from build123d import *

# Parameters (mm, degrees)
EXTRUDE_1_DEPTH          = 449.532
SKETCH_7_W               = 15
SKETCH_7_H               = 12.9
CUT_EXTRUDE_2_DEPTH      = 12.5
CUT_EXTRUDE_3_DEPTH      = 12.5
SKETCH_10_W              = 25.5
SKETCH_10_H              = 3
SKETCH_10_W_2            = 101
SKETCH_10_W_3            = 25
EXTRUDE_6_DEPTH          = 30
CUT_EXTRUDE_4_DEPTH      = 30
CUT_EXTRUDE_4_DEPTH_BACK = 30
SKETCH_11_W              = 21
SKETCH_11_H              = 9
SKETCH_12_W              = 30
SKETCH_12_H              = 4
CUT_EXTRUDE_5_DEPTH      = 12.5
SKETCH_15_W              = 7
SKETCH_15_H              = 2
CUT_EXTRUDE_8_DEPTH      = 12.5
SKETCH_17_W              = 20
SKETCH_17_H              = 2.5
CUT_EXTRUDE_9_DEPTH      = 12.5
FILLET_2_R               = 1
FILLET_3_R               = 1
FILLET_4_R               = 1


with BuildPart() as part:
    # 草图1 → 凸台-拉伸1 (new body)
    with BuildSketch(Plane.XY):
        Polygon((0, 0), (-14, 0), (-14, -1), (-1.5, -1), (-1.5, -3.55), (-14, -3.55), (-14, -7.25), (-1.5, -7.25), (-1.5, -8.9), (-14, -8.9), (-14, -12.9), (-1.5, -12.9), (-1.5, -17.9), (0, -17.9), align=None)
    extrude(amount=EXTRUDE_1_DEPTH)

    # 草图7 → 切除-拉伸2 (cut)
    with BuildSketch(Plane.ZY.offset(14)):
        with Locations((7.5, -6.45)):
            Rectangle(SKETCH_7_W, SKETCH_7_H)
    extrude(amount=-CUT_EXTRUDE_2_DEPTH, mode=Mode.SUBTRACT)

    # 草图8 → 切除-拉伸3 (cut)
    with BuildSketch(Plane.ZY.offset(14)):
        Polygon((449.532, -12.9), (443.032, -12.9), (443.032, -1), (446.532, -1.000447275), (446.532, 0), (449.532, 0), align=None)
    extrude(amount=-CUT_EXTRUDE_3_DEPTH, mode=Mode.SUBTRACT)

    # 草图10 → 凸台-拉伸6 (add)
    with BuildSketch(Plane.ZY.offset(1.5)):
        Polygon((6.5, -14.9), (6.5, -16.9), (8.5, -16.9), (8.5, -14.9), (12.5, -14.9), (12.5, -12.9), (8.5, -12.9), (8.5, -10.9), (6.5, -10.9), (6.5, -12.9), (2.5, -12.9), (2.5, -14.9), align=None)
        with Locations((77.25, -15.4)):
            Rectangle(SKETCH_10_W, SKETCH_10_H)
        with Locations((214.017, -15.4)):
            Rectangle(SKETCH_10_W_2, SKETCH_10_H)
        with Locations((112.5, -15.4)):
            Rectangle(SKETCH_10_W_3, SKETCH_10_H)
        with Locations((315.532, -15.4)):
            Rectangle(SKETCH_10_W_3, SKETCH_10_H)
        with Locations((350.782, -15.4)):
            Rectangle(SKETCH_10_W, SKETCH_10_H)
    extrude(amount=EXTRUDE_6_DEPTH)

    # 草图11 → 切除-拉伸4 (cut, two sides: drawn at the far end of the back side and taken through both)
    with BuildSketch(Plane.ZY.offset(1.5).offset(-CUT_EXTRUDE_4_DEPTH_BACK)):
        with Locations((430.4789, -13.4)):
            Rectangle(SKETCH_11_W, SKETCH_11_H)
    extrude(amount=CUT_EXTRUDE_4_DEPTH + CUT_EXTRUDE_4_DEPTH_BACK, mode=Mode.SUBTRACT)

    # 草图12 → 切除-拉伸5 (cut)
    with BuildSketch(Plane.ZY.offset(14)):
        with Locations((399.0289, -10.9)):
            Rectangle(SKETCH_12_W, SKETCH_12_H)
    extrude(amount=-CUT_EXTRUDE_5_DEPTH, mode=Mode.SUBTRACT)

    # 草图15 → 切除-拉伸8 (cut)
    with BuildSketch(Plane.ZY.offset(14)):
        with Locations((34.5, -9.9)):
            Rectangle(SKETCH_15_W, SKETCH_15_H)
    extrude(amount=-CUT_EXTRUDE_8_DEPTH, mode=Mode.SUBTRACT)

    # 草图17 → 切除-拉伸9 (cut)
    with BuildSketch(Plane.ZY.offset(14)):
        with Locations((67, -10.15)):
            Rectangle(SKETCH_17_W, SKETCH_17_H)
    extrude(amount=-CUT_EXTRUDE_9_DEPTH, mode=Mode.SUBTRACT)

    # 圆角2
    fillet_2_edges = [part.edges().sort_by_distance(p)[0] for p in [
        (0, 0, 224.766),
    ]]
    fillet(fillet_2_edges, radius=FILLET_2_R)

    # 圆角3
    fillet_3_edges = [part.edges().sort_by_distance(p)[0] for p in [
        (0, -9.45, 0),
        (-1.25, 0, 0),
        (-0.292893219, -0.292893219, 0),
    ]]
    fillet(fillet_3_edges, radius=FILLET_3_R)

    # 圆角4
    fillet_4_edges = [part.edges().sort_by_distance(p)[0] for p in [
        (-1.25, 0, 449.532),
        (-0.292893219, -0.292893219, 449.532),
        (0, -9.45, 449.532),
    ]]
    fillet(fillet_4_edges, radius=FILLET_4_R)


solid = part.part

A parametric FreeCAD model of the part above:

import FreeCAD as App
import Part
import Sketcher
from FreeCAD import Vector
Q = App.Units.Quantity


def edges_at(feature, points):
    """Names of the edges that pass closest to the given points."""
    edges = feature.Shape.Edges
    near = lambda p: min(range(len(edges)), key=lambda i: edges[i].distToShape(Part.Vertex(*p))[0])
    return sorted({f"Edge{near(p) + 1}" for p in points})


def add_polygon(sketch, points):
    """Adds a closed chain of lines whose ends are joined by coincident constraints."""
    first, n = sketch.GeometryCount, len(points)
    for a, b in zip(points, points[1:] + points[:1]):
        sketch.addGeometry(Part.LineSegment(App.Vector(*a, 0), App.Vector(*b, 0)), False)
    for i in range(n):
        sketch.addConstraint(Sketcher.Constraint("Coincident", first + i, 2, first + (i + 1) % n, 1))

doc = App.newDocument("Part")
body = doc.addObject("PartDesign::Body", "Body")

# Sketch on XY plane
sketch1 = doc.addObject("Sketcher::SketchObject", "Sketch")
body.addObject(sketch1)
sketch1.AttachmentSupport = (doc.XY_Plane, [""])
sketch1.MapMode = "FlatFace"
add_polygon(sketch1, [(0, 0), (-14, 0), (-14, -1), (-1.5, -1), (-1.5, -3.5), (-14, -3.5), (-14, -7.2), (-1.5, -7.2), (-1.5, -8.9), (-14, -8.9), (-14, -12.9), (-1.5, -12.9), (-1.5, -17.9), (0, -17.9)])  # lines 0-13
sketch1.addConstraint([
    Sketcher.Constraint("Horizontal", 0),
    Sketcher.Constraint("Vertical", 1),
    Sketcher.Constraint("Horizontal", 2),
    Sketcher.Constraint("Vertical", 3),
    Sketcher.Constraint("Horizontal", 4),
    Sketcher.Constraint("Vertical", 5),
    Sketcher.Constraint("Horizontal", 6),
    Sketcher.Constraint("Vertical", 7),
    Sketcher.Constraint("Horizontal", 8),
    Sketcher.Constraint("Vertical", 9),
    Sketcher.Constraint("Horizontal", 10),
    Sketcher.Constraint("Vertical", 11),
    Sketcher.Constraint("Horizontal", 12),
    Sketcher.Constraint("Vertical", 13),
    Sketcher.Constraint("Coincident", 13, 2, -1, 1),
    Sketcher.Constraint("Vertical", 1, 2, 4, 2),
    Sketcher.Constraint("Vertical", 3, 2, 6, 2),
    Sketcher.Constraint("Vertical", 5, 2, 8, 2),
    Sketcher.Constraint("Vertical", 7, 2, 10, 2),
    Sketcher.Constraint("DistanceX", 0, 2, 0, 1, Q("14 mm")),
    Sketcher.Constraint("DistanceY", 1, 2, 1, 1, Q("1 mm")),
    Sketcher.Constraint("DistanceY", 9, 2, 9, 1, Q("4 mm")),
    Sketcher.Constraint("DistanceY", 11, 2, 11, 1, Q("5 mm")),
    Sketcher.Constraint("DistanceX", 2, 1, 2, 2, Q("12.5 mm")),
    Sketcher.Constraint("DistanceY", 5, 2, 5, 1, Q("3.7 mm")),
    Sketcher.Constraint("DistanceY", 13, 1, 13, 2, Q("17.9 mm")),
    Sketcher.Constraint("DistanceY", 3, 2, 3, 1, Q("2.55 mm")),
])
pad1 = doc.addObject("PartDesign::Pad", "Pad")
body.addObject(pad1)
pad1.Profile = sketch1
pad1.Length = 449.532

# Sketch on YZ plane
sketch2 = doc.addObject("Sketcher::SketchObject", "Sketch001")
body.addObject(sketch2)
sketch2.AttachmentSupport = (doc.YZ_Plane, [""])
sketch2.MapMode = "FlatFace"
sketch2.AttachmentOffset = App.Placement(Vector(0, 0, -14), App.Rotation())
add_polygon(sketch2, [(0, 0), (-13, 0), (-13, 15), (0, 15)])  # lines 0-3
sketch2.addConstraint([
    Sketcher.Constraint("Horizontal", 0),
    Sketcher.Constraint("Vertical", 1),
    Sketcher.Constraint("Horizontal", 2),
    Sketcher.Constraint("Vertical", 3),
    Sketcher.Constraint("Coincident", 3, 2, -1, 1),
    Sketcher.Constraint("DistanceY", 1, 1, 1, 2, Q("15 mm")),
    Sketcher.Constraint("DistanceX", 0, 2, 0, 1, Q("12.9 mm")),
])
pocket1 = doc.addObject("PartDesign::Pocket", "Pocket")
body.addObject(pocket1)
pocket1.Profile = sketch2
pocket1.Length = 12.5
pocket1.Reversed = True

# Sketch on YZ plane
sketch3 = doc.addObject("Sketcher::SketchObject", "Sketch002")
body.addObject(sketch3)
sketch3.AttachmentSupport = (doc.YZ_Plane, [""])
sketch3.MapMode = "FlatFace"
sketch3.AttachmentOffset = App.Placement(Vector(0, 0, -14), App.Rotation())
add_polygon(sketch3, [(-12.9, 443), (-12.9, 449.5), (0, 449.5), (0, 446.5), (-1, 446.5), (-1, 443)])  # lines 0-5
sketch3.addConstraint([
    Sketcher.Constraint("Vertical", 0),
    Sketcher.Constraint("Horizontal", 1),
    Sketcher.Constraint("Vertical", 2),
    Sketcher.Constraint("Horizontal", 3),
    Sketcher.Constraint("Horizontal", 5),
    Sketcher.Constraint("PointOnObject", 1, 2, -2),
    Sketcher.Constraint("DistanceY", 2, 2, 2, 1, Q("3 mm")),
    Sketcher.Constraint("DistanceX", 1, 1, 1, 2, Q("12.9 mm")),
    Sketcher.Constraint("DistanceX", 5, 2, 5, 1, Q("11.9 mm")),
    Sketcher.Constraint("DistanceY", 0, 1, 0, 2, Q("6.5 mm")),
    Sketcher.Constraint("DistanceY", -1, 1, 0, 2, Q("449.532 mm")),
    Sketcher.Constraint("DistanceX", 3, 2, 3, 1, Q("1.000447 mm")),
])
pocket2 = doc.addObject("PartDesign::Pocket", "Pocket001")
body.addObject(pocket2)
pocket2.Profile = sketch3
pocket2.Length = 12.5
pocket2.Reversed = True

# Sketch on YZ plane
sketch4 = doc.addObject("Sketcher::SketchObject", "Sketch003")
body.addObject(sketch4)
sketch4.AttachmentSupport = (doc.YZ_Plane, [""])
sketch4.MapMode = "FlatFace"
sketch4.AttachmentOffset = App.Placement(Vector(0, 0, -1.5), App.Rotation())
add_polygon(sketch4, [(-14.9, 6.5), (-16.9, 6.5), (-16.9, 8.5), (-14.9, 8.5), (-14.9, 12.5), (-12.9, 12.5), (-12.9, 8.5), (-10.9, 8.5), (-10.9, 6.5), (-12.9, 6.5), (-12.9, 2.5), (-14.9, 2.5)])  # lines 0-11
add_polygon(sketch4, [(-13.9, 64.5), (-16.9, 64.5), (-16.9, 90), (-13.9, 90)])  # lines 12-15
add_polygon(sketch4, [(-13.9, 163.5), (-16.9, 163.5), (-16.9, 264.5), (-13.9, 264.5)])  # lines 16-19
add_polygon(sketch4, [(-13.9, 100), (-16.9, 100), (-16.9, 125), (-13.9, 125)])  # lines 20-23
add_polygon(sketch4, [(-13.9, 303), (-16.9, 303), (-16.9, 328), (-13.9, 328)])  # lines 24-27
add_polygon(sketch4, [(-13.9, 338), (-16.9, 338), (-16.9, 363.5), (-13.9, 363.5)])  # lines 28-31
sketch4.addConstraint([
    Sketcher.Constraint("Horizontal", 0),
    Sketcher.Constraint("Vertical", 1),
    Sketcher.Constraint("Horizontal", 2),
    Sketcher.Constraint("Vertical", 3),
    Sketcher.Constraint("Horizontal", 4),
    Sketcher.Constraint("Vertical", 5),
    Sketcher.Constraint("Horizontal", 6),
    Sketcher.Constraint("Vertical", 7),
    Sketcher.Constraint("Horizontal", 8),
    Sketcher.Constraint("Vertical", 9),
    Sketcher.Constraint("Horizontal", 10),
    Sketcher.Constraint("Vertical", 11),
    Sketcher.Constraint("Horizontal", 12),
    Sketcher.Constraint("Vertical", 13),
    Sketcher.Constraint("Horizontal", 14),
    Sketcher.Constraint("Vertical", 15),
    Sketcher.Constraint("Horizontal", 16),
    Sketcher.Constraint("Vertical", 17),
    Sketcher.Constraint("Horizontal", 18),
    Sketcher.Constraint("Vertical", 19),
    Sketcher.Constraint("Horizontal", 20),
    Sketcher.Constraint("Vertical", 21),
    Sketcher.Constraint("Horizontal", 22),
    Sketcher.Constraint("Vertical", 23),
    Sketcher.Constraint("Horizontal", 24),
    Sketcher.Constraint("Vertical", 25),
    Sketcher.Constraint("Horizontal", 26),
    Sketcher.Constraint("Vertical", 27),
    Sketcher.Constraint("Horizontal", 28),
    Sketcher.Constraint("Vertical", 29),
    Sketcher.Constraint("Horizontal", 30),
    Sketcher.Constraint("Vertical", 31),
    Sketcher.Constraint("Horizontal", 2, 2, 5, 2),
    Sketcher.Constraint("Horizontal", 0, 2, 7, 2),
    Sketcher.Constraint("Vertical", 5, 2, 8, 2),
    Sketcher.Constraint("Vertical", 3, 2, 10, 2),
    Sketcher.Constraint("Vertical", 1, 2, 12, 2),
    Sketcher.Constraint("Vertical", 13, 2, 16, 2),
    Sketcher.Constraint("Vertical", 15, 2, 18, 2),
    Sketcher.Constraint("Vertical", 17, 2, 20, 2),
    Sketcher.Constraint("Vertical", 19, 2, 22, 2),
    Sketcher.Constraint("Vertical", 21, 2, 24, 2),
    Sketcher.Constraint("Vertical", 23, 2, 26, 2),
    Sketcher.Constraint("Vertical", 25, 2, 28, 2),
    Sketcher.Constraint("Vertical", 27, 2, 30, 2),
    Sketcher.Constraint("Equal", 2, 4),
    Sketcher.Constraint("Equal", 4, 6),
    Sketcher.Constraint("Equal", 10, 1),
    Sketcher.Constraint("Equal", 5, 9),
    Sketcher.Constraint("Equal", 23, 25),
    Sketcher.Constraint("Equal", 15, 29),
    Sketcher.Constraint("DistanceX", 0, 2, 0, 1, Q("2 mm")),
    Sketcher.Constraint("DistanceX", 12, 2, 12, 1, Q("3 mm")),
    Sketcher.Constraint("DistanceY", 3, 1, 3, 2, Q("4 mm")),
    Sketcher.Constraint("DistanceY", 17, 1, 17, 2, Q("101 mm")),
    Sketcher.Constraint("DistanceY", 21, 1, 21, 2, Q("25 mm")),
    Sketcher.Constraint("DistanceY", 13, 1, 13, 2, Q("25.5 mm")),
    Sketcher.Constraint("DistanceY", -1, 1, 13, 2, Q("90 mm")),
    Sketcher.Constraint("DistanceY", -1, 1, 20, 2, Q("100 mm")),
    Sketcher.Constraint("DistanceY", 3, 2, 12, 2, Q("52 mm")),
    Sketcher.Constraint("DistanceY", 25, 2, 28, 2, Q("10 mm")),
    Sketcher.Constraint("DistanceX", 0, 2, -1, 1, Q("16.9 mm")),
    Sketcher.Constraint("DistanceY", -1, 1, 16, 2, Q("163.517 mm")),
    Sketcher.Constraint("DistanceY", -1, 1, 24, 2, Q("303.032 mm")),
])
pad2 = doc.addObject("PartDesign::Pad", "Pad001")
body.addObject(pad2)
pad2.Profile = sketch4
pad2.Length = 30
pad2.Reversed = True

# Sketch on YZ plane
sketch5 = doc.addObject("Sketcher::SketchObject", "Sketch004")
body.addObject(sketch5)
sketch5.AttachmentSupport = (doc.YZ_Plane, [""])
sketch5.MapMode = "FlatFace"
sketch5.AttachmentOffset = App.Placement(Vector(0, 0, -1.5), App.Rotation())
add_polygon(sketch5, [(-9, 420), (-18, 420), (-18, 441), (-9, 441)])  # lines 0-3
sketch5.addConstraint([
    Sketcher.Constraint("Horizontal", 0),
    Sketcher.Constraint("Vertical", 1),
    Sketcher.Constraint("Horizontal", 2),
    Sketcher.Constraint("Vertical", 3),
    Sketcher.Constraint("DistanceX", 0, 2, 0, 1, Q("9 mm")),
    Sketcher.Constraint("DistanceY", 1, 1, 1, 2, Q("21 mm")),
    Sketcher.Constraint("DistanceX", 0, 2, -1, 1, Q("17.9 mm")),
    Sketcher.Constraint("DistanceY", -1, 1, 0, 2, Q("419.9789 mm")),
])
pocket3 = doc.addObject("PartDesign::Pocket", "Pocket002")
body.addObject(pocket3)
pocket3.Profile = sketch5
pocket3.Type = "ThroughAll"
pocket3.Midplane = True

# Sketch on YZ plane
sketch6 = doc.addObject("Sketcher::SketchObject", "Sketch005")
body.addObject(sketch6)
sketch6.AttachmentSupport = (doc.YZ_Plane, [""])
sketch6.MapMode = "FlatFace"
sketch6.AttachmentOffset = App.Placement(Vector(0, 0, -14), App.Rotation())
add_polygon(sketch6, [(-8.9, 384), (-12.9, 384), (-12.9, 414), (-8.9, 414)])  # lines 0-3
sketch6.addConstraint([
    Sketcher.Constraint("Horizontal", 0),
    Sketcher.Constraint("Vertical", 1),
    Sketcher.Constraint("Horizontal", 2),
    Sketcher.Constraint("Vertical", 3),
    Sketcher.Constraint("DistanceX", 0, 2, 0, 1, Q("4 mm")),
    Sketcher.Constraint("DistanceY", 1, 1, 1, 2, Q("30 mm")),
    Sketcher.Constraint("DistanceX", 0, 2, -1, 1, Q("12.9 mm")),
    Sketcher.Constraint("DistanceY", -1, 1, 0, 2, Q("384.0289 mm")),
])
pocket4 = doc.addObject("PartDesign::Pocket", "Pocket003")
body.addObject(pocket4)
pocket4.Profile = sketch6
pocket4.Length = 12.5
pocket4.Reversed = True

# Sketch on YZ plane
sketch7 = doc.addObject("Sketcher::SketchObject", "Sketch006")
body.addObject(sketch7)
sketch7.AttachmentSupport = (doc.YZ_Plane, [""])
sketch7.MapMode = "FlatFace"
sketch7.AttachmentOffset = App.Placement(Vector(0, 0, -14), App.Rotation())
add_polygon(sketch7, [(-8.9, 31), (-10.9, 31), (-10.9, 38), (-8.9, 38)])  # lines 0-3
sketch7.addConstraint([
    Sketcher.Constraint("Horizontal", 0),
    Sketcher.Constraint("Vertical", 1),
    Sketcher.Constraint("Horizontal", 2),
    Sketcher.Constraint("Vertical", 3),
    Sketcher.Constraint("DistanceX", 0, 2, 0, 1, Q("2 mm")),
    Sketcher.Constraint("DistanceY", 1, 1, 1, 2, Q("7 mm")),
    Sketcher.Constraint("DistanceY", -1, 1, 0, 2, Q("31 mm")),
    Sketcher.Constraint("DistanceX", 0, 2, -1, 1, Q("10.9 mm")),
])
pocket5 = doc.addObject("PartDesign::Pocket", "Pocket004")
body.addObject(pocket5)
pocket5.Profile = sketch7
pocket5.Length = 12.5
pocket5.Reversed = True

# Sketch on YZ plane
sketch8 = doc.addObject("Sketcher::SketchObject", "Sketch007")
body.addObject(sketch8)
sketch8.AttachmentSupport = (doc.YZ_Plane, [""])
sketch8.MapMode = "FlatFace"
sketch8.AttachmentOffset = App.Placement(Vector(0, 0, -14), App.Rotation())
add_polygon(sketch8, [(-8.9, 57), (-11.4, 57), (-11.4, 77), (-8.9, 77)])  # lines 0-3
sketch8.addConstraint([
    Sketcher.Constraint("Horizontal", 0),
    Sketcher.Constraint("Vertical", 1),
    Sketcher.Constraint("Horizontal", 2),
    Sketcher.Constraint("Vertical", 3),
    Sketcher.Constraint("DistanceY", 1, 1, 1, 2, Q("20 mm")),
    Sketcher.Constraint("DistanceX", 0, 2, 0, 1, Q("2.5 mm")),
    Sketcher.Constraint("DistanceY", -1, 1, 0, 2, Q("57 mm")),
    Sketcher.Constraint("DistanceX", 0, 2, -1, 1, Q("11.4 mm")),
])
pocket6 = doc.addObject("PartDesign::Pocket", "Pocket005")
body.addObject(pocket6)
pocket6.Profile = sketch8
pocket6.Length = 12.5
pocket6.Reversed = True
doc.recompute()

fillet = doc.addObject("PartDesign::Fillet", "Fillet")
body.addObject(fillet)
fillet.Base = (pocket6, edges_at(pocket6, [(0, 0, 224.766)]))
fillet.Radius = 1
doc.recompute()

fillet2 = doc.addObject("PartDesign::Fillet", "Fillet001")
body.addObject(fillet2)
fillet2.Base = (fillet, edges_at(fillet, [(0, -9.45, 0), (-1.25, 0, 0), (-0.293, -0.293, 0)]))
fillet2.Radius = 1
doc.recompute()

fillet3 = doc.addObject("PartDesign::Fillet", "Fillet002")
body.addObject(fillet3)
fillet3.Base = (fillet2, edges_at(fillet2, [(-1.25, 0, 449.532), (-0.293, -0.293, 449.532), (0, -9.45, 449.532)]))
fillet3.Radius = 1

doc.recompute()
